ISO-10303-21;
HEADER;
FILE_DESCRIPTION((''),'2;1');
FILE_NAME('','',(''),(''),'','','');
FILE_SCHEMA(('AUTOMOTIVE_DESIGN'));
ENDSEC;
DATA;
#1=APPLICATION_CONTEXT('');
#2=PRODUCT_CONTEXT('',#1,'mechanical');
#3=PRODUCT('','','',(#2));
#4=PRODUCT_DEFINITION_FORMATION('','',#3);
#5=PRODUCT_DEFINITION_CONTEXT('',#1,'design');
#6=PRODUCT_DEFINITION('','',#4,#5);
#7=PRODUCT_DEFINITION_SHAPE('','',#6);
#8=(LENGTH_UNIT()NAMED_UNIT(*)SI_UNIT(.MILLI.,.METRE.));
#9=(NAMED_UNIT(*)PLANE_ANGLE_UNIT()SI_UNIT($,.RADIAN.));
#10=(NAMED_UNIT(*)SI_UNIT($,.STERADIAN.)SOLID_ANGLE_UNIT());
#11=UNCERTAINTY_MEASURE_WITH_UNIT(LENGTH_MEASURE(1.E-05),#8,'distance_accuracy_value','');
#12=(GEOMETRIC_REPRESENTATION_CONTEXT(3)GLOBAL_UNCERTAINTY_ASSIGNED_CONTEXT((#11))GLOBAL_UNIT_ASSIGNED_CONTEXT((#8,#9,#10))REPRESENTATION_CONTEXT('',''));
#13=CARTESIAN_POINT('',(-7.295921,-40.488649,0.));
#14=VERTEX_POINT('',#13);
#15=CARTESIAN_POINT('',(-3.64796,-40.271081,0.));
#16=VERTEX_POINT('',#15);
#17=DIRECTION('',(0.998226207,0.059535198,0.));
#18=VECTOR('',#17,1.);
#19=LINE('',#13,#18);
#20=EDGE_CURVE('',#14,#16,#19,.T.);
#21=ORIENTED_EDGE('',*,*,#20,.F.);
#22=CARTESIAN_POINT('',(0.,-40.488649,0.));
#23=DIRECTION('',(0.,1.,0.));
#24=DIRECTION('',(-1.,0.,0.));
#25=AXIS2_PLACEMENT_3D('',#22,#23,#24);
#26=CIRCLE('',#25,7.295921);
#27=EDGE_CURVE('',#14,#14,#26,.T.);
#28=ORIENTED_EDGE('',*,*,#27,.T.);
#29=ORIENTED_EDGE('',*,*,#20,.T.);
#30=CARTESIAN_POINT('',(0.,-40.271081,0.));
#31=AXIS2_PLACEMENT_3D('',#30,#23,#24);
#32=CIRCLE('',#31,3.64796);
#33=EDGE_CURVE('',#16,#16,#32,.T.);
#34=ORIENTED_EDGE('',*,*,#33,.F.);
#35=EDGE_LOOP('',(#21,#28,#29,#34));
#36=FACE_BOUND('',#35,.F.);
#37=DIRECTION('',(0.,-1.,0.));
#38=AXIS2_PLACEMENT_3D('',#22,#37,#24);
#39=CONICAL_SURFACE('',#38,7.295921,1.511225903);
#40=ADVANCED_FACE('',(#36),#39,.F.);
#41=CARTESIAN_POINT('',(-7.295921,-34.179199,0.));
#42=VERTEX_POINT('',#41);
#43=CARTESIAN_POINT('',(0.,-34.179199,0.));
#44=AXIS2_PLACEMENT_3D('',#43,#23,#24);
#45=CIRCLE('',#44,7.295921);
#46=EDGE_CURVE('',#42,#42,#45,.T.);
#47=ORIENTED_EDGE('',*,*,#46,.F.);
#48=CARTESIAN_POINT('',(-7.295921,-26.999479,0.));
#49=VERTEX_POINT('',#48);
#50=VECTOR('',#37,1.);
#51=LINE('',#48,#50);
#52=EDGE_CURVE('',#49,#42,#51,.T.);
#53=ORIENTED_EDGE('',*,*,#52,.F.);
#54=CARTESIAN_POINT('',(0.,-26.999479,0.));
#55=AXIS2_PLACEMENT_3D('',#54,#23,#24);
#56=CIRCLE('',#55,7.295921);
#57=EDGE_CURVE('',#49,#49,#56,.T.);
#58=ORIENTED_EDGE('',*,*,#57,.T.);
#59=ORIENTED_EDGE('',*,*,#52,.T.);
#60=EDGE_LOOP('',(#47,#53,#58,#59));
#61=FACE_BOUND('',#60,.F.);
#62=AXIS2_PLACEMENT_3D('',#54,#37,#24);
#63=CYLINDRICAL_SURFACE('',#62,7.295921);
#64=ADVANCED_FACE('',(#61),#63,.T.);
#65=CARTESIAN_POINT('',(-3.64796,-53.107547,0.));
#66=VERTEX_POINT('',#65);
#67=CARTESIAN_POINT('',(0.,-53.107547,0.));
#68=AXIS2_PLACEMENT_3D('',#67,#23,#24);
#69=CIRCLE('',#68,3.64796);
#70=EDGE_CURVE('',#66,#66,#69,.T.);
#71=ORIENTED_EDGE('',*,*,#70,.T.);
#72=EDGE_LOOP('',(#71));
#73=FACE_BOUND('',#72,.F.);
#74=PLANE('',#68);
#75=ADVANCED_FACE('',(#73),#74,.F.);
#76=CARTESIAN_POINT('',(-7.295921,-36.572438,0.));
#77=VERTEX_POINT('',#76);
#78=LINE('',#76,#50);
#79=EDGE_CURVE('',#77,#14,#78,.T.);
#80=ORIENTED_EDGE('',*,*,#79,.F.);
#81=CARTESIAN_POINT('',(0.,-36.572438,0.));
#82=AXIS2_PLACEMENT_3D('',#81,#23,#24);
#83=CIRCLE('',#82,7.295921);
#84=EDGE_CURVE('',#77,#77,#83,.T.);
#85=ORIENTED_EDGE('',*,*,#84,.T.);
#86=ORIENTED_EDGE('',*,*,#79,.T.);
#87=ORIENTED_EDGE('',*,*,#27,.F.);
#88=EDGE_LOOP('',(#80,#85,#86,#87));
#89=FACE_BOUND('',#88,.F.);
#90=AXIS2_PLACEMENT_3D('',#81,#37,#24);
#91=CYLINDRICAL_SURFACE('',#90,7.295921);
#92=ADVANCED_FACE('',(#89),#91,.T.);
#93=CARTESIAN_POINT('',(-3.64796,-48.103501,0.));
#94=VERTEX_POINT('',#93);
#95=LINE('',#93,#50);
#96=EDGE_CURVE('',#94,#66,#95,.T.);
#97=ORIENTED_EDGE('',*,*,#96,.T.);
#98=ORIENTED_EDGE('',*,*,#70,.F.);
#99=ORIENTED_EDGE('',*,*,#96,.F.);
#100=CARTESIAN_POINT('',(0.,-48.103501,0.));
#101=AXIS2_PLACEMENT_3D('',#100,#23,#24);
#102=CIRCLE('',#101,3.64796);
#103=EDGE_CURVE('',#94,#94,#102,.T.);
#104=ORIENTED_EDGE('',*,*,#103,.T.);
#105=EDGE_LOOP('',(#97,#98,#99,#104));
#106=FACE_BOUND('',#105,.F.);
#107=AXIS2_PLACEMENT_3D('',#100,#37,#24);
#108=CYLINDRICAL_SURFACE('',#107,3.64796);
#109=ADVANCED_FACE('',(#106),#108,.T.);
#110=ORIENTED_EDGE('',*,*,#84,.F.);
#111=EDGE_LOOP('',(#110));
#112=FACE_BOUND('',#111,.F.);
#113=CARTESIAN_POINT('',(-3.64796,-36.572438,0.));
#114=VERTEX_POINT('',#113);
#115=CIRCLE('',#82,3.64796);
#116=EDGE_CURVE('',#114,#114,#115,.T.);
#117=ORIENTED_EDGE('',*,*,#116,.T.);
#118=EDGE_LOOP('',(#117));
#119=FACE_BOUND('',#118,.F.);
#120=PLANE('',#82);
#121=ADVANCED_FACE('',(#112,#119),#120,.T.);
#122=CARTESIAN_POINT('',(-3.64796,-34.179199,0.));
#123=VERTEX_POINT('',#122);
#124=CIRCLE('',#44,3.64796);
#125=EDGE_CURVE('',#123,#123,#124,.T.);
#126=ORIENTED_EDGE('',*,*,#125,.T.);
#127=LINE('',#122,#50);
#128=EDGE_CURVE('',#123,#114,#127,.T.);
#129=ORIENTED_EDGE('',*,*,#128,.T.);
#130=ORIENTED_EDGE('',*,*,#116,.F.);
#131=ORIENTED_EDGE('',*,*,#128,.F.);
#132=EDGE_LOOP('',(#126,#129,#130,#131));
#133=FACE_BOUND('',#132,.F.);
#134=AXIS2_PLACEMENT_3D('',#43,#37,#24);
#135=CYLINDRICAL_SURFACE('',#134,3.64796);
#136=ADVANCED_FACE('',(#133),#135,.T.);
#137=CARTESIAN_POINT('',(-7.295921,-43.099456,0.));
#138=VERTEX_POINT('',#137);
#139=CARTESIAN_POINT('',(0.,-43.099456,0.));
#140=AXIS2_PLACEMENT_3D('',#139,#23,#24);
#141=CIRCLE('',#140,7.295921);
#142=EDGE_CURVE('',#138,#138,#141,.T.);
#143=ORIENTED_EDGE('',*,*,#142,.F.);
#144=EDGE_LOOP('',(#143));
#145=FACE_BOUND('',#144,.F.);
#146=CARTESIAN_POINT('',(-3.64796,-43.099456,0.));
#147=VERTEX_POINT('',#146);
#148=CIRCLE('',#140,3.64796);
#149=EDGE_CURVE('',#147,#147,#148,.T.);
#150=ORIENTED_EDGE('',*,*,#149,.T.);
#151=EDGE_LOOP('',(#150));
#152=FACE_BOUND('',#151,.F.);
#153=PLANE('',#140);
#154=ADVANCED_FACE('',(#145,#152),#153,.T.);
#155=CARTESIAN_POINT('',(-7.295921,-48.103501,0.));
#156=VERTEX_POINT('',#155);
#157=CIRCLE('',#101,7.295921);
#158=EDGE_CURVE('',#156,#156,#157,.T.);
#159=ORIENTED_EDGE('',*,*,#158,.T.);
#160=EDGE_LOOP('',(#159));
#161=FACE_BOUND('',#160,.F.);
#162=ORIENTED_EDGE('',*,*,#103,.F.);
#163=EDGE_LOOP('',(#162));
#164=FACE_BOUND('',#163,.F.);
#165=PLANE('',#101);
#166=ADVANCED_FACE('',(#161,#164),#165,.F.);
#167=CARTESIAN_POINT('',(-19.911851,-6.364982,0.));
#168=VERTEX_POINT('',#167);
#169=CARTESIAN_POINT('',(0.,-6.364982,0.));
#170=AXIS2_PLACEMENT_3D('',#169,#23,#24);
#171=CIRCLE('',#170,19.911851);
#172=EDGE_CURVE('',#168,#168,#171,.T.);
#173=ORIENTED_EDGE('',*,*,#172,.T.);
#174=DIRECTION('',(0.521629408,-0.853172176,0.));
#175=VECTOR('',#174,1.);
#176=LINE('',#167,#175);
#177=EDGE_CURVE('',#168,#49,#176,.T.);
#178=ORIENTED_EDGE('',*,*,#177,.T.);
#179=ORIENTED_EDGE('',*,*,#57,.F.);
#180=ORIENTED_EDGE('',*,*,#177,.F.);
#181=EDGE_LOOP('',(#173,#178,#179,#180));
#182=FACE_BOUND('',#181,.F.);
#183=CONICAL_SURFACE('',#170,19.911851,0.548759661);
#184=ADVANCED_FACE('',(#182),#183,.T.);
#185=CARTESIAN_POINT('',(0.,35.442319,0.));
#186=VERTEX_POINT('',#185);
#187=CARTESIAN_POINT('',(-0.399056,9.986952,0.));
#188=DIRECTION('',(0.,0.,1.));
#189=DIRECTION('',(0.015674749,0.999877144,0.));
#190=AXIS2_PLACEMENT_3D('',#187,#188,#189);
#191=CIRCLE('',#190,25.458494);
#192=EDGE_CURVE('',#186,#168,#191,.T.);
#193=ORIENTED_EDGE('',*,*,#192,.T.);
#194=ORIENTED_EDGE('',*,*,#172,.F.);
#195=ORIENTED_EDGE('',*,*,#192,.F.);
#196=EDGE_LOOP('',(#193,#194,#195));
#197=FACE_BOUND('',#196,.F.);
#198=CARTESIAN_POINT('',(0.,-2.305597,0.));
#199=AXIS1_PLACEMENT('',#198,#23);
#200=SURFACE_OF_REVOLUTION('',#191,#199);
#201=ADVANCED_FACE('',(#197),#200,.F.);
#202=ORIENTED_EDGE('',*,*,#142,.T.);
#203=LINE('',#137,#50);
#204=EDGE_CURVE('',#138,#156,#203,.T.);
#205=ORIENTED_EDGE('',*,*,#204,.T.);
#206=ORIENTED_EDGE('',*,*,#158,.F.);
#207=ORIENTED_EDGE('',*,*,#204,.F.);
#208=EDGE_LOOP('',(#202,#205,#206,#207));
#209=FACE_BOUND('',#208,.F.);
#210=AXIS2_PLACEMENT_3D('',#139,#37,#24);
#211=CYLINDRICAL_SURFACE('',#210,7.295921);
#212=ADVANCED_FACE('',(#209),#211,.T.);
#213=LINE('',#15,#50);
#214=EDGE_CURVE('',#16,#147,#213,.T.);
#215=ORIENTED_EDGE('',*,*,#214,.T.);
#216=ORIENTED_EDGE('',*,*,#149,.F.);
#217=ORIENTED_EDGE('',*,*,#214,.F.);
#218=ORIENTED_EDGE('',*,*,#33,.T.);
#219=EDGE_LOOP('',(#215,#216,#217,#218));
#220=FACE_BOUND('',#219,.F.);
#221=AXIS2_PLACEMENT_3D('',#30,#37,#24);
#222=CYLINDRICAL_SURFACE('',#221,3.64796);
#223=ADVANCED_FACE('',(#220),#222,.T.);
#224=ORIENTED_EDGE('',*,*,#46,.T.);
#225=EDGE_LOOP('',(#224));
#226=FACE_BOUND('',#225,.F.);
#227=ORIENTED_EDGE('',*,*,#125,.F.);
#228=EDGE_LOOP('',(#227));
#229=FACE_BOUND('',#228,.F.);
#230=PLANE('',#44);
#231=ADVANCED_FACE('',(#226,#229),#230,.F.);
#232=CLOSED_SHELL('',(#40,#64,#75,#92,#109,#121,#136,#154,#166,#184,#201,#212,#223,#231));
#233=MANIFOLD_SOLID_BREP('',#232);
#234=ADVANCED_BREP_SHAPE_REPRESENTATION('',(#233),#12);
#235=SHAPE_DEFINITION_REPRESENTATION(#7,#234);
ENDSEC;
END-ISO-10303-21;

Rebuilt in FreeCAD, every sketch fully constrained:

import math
import FreeCAD as App
import Part
import Sketcher

doc = App.newDocument("Part")
body = doc.addObject("PartDesign::Body", "Body")

# Sketch on XY plane
sketch1 = body.newObject("Sketcher::SketchObject", "Sketch")
sketch1.AttachmentSupport = (doc.getObject("XY_Plane"), [""])
sketch1.MapMode = "FlatFace"
sketch1.addGeometry(Part.ArcOfCircle(Part.Circle(App.Vector(-0.4, 10, 0), App.Vector(0, 0, 1), 25.5), math.radians(89), math.radians(220)), False)
sketch1.addGeometry(Part.LineSegment(App.Vector(-19.9, -6.4, 0), App.Vector(-7.3, -27, 0)), False)
sketch1.addGeometry(Part.LineSegment(App.Vector(-7.3, -27, 0), App.Vector(-7.3, -34.2, 0)), False)
sketch1.addGeometry(Part.LineSegment(App.Vector(-7.3, -34.2, 0), App.Vector(-3.6, -34.2, 0)), False)
sketch1.addGeometry(Part.LineSegment(App.Vector(-3.6, -34.2, 0), App.Vector(-3.6, -36.6, 0)), False)
sketch1.addGeometry(Part.LineSegment(App.Vector(-3.6, -36.6, 0), App.Vector(-7.3, -36.6, 0)), False)
sketch1.addGeometry(Part.LineSegment(App.Vector(-7.3, -36.6, 0), App.Vector(-7.3, -40.5, 0)), False)
sketch1.addGeometry(Part.LineSegment(App.Vector(-7.3, -40.5, 0), App.Vector(-3.6, -40.3, 0)), False)
sketch1.addGeometry(Part.LineSegment(App.Vector(-3.6, -40.3, 0), App.Vector(-3.6, -43.1, 0)), False)
sketch1.addGeometry(Part.LineSegment(App.Vector(-3.6, -43.1, 0), App.Vector(-7.3, -43.1, 0)), False)
sketch1.addGeometry(Part.LineSegment(App.Vector(-7.3, -43.1, 0), App.Vector(-7.3, -48.1, 0)), False)
sketch1.addGeometry(Part.LineSegment(App.Vector(-7.3, -48.1, 0), App.Vector(-3.6, -48.1, 0)), False)
sketch1.addGeometry(Part.LineSegment(App.Vector(-3.6, -48.1, 0), App.Vector(-3.6, -53.1, 0)), False)
sketch1.addGeometry(Part.LineSegment(App.Vector(-3.6, -53.1, 0), App.Vector(0, -53.1, 0)), False)
sketch1.addGeometry(Part.LineSegment(App.Vector(0, -53.1, 0), App.Vector(0, 35.4, 0)), False)
sketch1.addConstraint(Sketcher.Constraint("Coincident", 0, 2, 1, 1))
sketch1.addConstraint(Sketcher.Constraint("Coincident", 1, 2, 2, 1))
sketch1.addConstraint(Sketcher.Constraint("Coincident", 2, 2, 3, 1))
sketch1.addConstraint(Sketcher.Constraint("Coincident", 3, 2, 4, 1))
sketch1.addConstraint(Sketcher.Constraint("Coincident", 4, 2, 5, 1))
sketch1.addConstraint(Sketcher.Constraint("Coincident", 5, 2, 6, 1))
sketch1.addConstraint(Sketcher.Constraint("Coincident", 6, 2, 7, 1))
sketch1.addConstraint(Sketcher.Constraint("Coincident", 7, 2, 8, 1))
sketch1.addConstraint(Sketcher.Constraint("Coincident", 8, 2, 9, 1))
sketch1.addConstraint(Sketcher.Constraint("Coincident", 9, 2, 10, 1))
sketch1.addConstraint(Sketcher.Constraint("Coincident", 10, 2, 11, 1))
sketch1.addConstraint(Sketcher.Constraint("Coincident", 11, 2, 12, 1))
sketch1.addConstraint(Sketcher.Constraint("Coincident", 12, 2, 13, 1))
sketch1.addConstraint(Sketcher.Constraint("Coincident", 13, 2, 14, 1))
sketch1.addConstraint(Sketcher.Constraint("Coincident", 14, 2, 0, 1))
sketch1.addConstraint(Sketcher.Constraint("Vertical", 2))
sketch1.addConstraint(Sketcher.Constraint("Horizontal", 3))
sketch1.addConstraint(Sketcher.Constraint("Vertical", 4))
sketch1.addConstraint(Sketcher.Constraint("Horizontal", 5))
sketch1.addConstraint(Sketcher.Constraint("Vertical", 6))
sketch1.addConstraint(Sketcher.Constraint("Vertical", 8))
sketch1.addConstraint(Sketcher.Constraint("Horizontal", 9))
sketch1.addConstraint(Sketcher.Constraint("Vertical", 10))
sketch1.addConstraint(Sketcher.Constraint("Horizontal", 11))
sketch1.addConstraint(Sketcher.Constraint("Vertical", 12))
sketch1.addConstraint(Sketcher.Constraint("Horizontal", 13))
sketch1.addConstraint(Sketcher.Constraint("Vertical", 14))
sketch1.addConstraint(Sketcher.Constraint("PointOnObject", 13, 2, -2))
sketch1.addConstraint(Sketcher.Constraint("Vertical", 2, 2, 5, 2))
sketch1.addConstraint(Sketcher.Constraint("Vertical", 4, 2, 7, 2))
sketch1.addConstraint(Sketcher.Constraint("Vertical", 6, 2, 9, 2))
sketch1.addConstraint(Sketcher.Constraint("Vertical", 8, 2, 11, 2))
sketch1.addConstraint(Sketcher.Constraint("Equal", 11, 13))
sketch1.addConstraint(Sketcher.Constraint("Equal", 10, 12))
sketch1.addConstraint(Sketcher.Constraint("Radius", 0, 25.458494))
sketch1.addConstraint(Sketcher.Constraint("DistanceX", 3, 1, 3, 2, 3.647961))
sketch1.addConstraint(Sketcher.Constraint("DistanceY", 2, 2, 2, 1, 7.17972))
sketch1.addConstraint(Sketcher.Constraint("DistanceY", 4, 2, 4, 1, 2.393239))
sketch1.addConstraint(Sketcher.Constraint("DistanceY", 6, 2, 6, 1, 3.916211))
sketch1.addConstraint(Sketcher.Constraint("DistanceY", 2, 2, -1, 1, 34.179199))
sketch1.addConstraint(Sketcher.Constraint("DistanceY", 10, 2, -1, 1, 48.103501))
sketch1.addConstraint(Sketcher.Constraint("DistanceY", 0, 2, 14, 2, 41.807301))
sketch1.addConstraint(Sketcher.Constraint("Distance", 1, 24.185619))
sketch1.addConstraint(Sketcher.Constraint("DistanceY", 8, 2, 8, 1, 2.828375))
sketch1.addConstraint(Sketcher.Constraint("DistanceY", 10, 2, 10, 1, 5.004045))
sketch1.addConstraint(Sketcher.Constraint("DistanceY", 14, 1, 14, 2, 88.549866))
revolution = body.newObject("PartDesign::Revolution", "Revolution")
revolution.Profile = sketch1
revolution.ReferenceAxis = (sketch1, ["V_Axis"])
revolution.Angle = 360

doc.recompute()
